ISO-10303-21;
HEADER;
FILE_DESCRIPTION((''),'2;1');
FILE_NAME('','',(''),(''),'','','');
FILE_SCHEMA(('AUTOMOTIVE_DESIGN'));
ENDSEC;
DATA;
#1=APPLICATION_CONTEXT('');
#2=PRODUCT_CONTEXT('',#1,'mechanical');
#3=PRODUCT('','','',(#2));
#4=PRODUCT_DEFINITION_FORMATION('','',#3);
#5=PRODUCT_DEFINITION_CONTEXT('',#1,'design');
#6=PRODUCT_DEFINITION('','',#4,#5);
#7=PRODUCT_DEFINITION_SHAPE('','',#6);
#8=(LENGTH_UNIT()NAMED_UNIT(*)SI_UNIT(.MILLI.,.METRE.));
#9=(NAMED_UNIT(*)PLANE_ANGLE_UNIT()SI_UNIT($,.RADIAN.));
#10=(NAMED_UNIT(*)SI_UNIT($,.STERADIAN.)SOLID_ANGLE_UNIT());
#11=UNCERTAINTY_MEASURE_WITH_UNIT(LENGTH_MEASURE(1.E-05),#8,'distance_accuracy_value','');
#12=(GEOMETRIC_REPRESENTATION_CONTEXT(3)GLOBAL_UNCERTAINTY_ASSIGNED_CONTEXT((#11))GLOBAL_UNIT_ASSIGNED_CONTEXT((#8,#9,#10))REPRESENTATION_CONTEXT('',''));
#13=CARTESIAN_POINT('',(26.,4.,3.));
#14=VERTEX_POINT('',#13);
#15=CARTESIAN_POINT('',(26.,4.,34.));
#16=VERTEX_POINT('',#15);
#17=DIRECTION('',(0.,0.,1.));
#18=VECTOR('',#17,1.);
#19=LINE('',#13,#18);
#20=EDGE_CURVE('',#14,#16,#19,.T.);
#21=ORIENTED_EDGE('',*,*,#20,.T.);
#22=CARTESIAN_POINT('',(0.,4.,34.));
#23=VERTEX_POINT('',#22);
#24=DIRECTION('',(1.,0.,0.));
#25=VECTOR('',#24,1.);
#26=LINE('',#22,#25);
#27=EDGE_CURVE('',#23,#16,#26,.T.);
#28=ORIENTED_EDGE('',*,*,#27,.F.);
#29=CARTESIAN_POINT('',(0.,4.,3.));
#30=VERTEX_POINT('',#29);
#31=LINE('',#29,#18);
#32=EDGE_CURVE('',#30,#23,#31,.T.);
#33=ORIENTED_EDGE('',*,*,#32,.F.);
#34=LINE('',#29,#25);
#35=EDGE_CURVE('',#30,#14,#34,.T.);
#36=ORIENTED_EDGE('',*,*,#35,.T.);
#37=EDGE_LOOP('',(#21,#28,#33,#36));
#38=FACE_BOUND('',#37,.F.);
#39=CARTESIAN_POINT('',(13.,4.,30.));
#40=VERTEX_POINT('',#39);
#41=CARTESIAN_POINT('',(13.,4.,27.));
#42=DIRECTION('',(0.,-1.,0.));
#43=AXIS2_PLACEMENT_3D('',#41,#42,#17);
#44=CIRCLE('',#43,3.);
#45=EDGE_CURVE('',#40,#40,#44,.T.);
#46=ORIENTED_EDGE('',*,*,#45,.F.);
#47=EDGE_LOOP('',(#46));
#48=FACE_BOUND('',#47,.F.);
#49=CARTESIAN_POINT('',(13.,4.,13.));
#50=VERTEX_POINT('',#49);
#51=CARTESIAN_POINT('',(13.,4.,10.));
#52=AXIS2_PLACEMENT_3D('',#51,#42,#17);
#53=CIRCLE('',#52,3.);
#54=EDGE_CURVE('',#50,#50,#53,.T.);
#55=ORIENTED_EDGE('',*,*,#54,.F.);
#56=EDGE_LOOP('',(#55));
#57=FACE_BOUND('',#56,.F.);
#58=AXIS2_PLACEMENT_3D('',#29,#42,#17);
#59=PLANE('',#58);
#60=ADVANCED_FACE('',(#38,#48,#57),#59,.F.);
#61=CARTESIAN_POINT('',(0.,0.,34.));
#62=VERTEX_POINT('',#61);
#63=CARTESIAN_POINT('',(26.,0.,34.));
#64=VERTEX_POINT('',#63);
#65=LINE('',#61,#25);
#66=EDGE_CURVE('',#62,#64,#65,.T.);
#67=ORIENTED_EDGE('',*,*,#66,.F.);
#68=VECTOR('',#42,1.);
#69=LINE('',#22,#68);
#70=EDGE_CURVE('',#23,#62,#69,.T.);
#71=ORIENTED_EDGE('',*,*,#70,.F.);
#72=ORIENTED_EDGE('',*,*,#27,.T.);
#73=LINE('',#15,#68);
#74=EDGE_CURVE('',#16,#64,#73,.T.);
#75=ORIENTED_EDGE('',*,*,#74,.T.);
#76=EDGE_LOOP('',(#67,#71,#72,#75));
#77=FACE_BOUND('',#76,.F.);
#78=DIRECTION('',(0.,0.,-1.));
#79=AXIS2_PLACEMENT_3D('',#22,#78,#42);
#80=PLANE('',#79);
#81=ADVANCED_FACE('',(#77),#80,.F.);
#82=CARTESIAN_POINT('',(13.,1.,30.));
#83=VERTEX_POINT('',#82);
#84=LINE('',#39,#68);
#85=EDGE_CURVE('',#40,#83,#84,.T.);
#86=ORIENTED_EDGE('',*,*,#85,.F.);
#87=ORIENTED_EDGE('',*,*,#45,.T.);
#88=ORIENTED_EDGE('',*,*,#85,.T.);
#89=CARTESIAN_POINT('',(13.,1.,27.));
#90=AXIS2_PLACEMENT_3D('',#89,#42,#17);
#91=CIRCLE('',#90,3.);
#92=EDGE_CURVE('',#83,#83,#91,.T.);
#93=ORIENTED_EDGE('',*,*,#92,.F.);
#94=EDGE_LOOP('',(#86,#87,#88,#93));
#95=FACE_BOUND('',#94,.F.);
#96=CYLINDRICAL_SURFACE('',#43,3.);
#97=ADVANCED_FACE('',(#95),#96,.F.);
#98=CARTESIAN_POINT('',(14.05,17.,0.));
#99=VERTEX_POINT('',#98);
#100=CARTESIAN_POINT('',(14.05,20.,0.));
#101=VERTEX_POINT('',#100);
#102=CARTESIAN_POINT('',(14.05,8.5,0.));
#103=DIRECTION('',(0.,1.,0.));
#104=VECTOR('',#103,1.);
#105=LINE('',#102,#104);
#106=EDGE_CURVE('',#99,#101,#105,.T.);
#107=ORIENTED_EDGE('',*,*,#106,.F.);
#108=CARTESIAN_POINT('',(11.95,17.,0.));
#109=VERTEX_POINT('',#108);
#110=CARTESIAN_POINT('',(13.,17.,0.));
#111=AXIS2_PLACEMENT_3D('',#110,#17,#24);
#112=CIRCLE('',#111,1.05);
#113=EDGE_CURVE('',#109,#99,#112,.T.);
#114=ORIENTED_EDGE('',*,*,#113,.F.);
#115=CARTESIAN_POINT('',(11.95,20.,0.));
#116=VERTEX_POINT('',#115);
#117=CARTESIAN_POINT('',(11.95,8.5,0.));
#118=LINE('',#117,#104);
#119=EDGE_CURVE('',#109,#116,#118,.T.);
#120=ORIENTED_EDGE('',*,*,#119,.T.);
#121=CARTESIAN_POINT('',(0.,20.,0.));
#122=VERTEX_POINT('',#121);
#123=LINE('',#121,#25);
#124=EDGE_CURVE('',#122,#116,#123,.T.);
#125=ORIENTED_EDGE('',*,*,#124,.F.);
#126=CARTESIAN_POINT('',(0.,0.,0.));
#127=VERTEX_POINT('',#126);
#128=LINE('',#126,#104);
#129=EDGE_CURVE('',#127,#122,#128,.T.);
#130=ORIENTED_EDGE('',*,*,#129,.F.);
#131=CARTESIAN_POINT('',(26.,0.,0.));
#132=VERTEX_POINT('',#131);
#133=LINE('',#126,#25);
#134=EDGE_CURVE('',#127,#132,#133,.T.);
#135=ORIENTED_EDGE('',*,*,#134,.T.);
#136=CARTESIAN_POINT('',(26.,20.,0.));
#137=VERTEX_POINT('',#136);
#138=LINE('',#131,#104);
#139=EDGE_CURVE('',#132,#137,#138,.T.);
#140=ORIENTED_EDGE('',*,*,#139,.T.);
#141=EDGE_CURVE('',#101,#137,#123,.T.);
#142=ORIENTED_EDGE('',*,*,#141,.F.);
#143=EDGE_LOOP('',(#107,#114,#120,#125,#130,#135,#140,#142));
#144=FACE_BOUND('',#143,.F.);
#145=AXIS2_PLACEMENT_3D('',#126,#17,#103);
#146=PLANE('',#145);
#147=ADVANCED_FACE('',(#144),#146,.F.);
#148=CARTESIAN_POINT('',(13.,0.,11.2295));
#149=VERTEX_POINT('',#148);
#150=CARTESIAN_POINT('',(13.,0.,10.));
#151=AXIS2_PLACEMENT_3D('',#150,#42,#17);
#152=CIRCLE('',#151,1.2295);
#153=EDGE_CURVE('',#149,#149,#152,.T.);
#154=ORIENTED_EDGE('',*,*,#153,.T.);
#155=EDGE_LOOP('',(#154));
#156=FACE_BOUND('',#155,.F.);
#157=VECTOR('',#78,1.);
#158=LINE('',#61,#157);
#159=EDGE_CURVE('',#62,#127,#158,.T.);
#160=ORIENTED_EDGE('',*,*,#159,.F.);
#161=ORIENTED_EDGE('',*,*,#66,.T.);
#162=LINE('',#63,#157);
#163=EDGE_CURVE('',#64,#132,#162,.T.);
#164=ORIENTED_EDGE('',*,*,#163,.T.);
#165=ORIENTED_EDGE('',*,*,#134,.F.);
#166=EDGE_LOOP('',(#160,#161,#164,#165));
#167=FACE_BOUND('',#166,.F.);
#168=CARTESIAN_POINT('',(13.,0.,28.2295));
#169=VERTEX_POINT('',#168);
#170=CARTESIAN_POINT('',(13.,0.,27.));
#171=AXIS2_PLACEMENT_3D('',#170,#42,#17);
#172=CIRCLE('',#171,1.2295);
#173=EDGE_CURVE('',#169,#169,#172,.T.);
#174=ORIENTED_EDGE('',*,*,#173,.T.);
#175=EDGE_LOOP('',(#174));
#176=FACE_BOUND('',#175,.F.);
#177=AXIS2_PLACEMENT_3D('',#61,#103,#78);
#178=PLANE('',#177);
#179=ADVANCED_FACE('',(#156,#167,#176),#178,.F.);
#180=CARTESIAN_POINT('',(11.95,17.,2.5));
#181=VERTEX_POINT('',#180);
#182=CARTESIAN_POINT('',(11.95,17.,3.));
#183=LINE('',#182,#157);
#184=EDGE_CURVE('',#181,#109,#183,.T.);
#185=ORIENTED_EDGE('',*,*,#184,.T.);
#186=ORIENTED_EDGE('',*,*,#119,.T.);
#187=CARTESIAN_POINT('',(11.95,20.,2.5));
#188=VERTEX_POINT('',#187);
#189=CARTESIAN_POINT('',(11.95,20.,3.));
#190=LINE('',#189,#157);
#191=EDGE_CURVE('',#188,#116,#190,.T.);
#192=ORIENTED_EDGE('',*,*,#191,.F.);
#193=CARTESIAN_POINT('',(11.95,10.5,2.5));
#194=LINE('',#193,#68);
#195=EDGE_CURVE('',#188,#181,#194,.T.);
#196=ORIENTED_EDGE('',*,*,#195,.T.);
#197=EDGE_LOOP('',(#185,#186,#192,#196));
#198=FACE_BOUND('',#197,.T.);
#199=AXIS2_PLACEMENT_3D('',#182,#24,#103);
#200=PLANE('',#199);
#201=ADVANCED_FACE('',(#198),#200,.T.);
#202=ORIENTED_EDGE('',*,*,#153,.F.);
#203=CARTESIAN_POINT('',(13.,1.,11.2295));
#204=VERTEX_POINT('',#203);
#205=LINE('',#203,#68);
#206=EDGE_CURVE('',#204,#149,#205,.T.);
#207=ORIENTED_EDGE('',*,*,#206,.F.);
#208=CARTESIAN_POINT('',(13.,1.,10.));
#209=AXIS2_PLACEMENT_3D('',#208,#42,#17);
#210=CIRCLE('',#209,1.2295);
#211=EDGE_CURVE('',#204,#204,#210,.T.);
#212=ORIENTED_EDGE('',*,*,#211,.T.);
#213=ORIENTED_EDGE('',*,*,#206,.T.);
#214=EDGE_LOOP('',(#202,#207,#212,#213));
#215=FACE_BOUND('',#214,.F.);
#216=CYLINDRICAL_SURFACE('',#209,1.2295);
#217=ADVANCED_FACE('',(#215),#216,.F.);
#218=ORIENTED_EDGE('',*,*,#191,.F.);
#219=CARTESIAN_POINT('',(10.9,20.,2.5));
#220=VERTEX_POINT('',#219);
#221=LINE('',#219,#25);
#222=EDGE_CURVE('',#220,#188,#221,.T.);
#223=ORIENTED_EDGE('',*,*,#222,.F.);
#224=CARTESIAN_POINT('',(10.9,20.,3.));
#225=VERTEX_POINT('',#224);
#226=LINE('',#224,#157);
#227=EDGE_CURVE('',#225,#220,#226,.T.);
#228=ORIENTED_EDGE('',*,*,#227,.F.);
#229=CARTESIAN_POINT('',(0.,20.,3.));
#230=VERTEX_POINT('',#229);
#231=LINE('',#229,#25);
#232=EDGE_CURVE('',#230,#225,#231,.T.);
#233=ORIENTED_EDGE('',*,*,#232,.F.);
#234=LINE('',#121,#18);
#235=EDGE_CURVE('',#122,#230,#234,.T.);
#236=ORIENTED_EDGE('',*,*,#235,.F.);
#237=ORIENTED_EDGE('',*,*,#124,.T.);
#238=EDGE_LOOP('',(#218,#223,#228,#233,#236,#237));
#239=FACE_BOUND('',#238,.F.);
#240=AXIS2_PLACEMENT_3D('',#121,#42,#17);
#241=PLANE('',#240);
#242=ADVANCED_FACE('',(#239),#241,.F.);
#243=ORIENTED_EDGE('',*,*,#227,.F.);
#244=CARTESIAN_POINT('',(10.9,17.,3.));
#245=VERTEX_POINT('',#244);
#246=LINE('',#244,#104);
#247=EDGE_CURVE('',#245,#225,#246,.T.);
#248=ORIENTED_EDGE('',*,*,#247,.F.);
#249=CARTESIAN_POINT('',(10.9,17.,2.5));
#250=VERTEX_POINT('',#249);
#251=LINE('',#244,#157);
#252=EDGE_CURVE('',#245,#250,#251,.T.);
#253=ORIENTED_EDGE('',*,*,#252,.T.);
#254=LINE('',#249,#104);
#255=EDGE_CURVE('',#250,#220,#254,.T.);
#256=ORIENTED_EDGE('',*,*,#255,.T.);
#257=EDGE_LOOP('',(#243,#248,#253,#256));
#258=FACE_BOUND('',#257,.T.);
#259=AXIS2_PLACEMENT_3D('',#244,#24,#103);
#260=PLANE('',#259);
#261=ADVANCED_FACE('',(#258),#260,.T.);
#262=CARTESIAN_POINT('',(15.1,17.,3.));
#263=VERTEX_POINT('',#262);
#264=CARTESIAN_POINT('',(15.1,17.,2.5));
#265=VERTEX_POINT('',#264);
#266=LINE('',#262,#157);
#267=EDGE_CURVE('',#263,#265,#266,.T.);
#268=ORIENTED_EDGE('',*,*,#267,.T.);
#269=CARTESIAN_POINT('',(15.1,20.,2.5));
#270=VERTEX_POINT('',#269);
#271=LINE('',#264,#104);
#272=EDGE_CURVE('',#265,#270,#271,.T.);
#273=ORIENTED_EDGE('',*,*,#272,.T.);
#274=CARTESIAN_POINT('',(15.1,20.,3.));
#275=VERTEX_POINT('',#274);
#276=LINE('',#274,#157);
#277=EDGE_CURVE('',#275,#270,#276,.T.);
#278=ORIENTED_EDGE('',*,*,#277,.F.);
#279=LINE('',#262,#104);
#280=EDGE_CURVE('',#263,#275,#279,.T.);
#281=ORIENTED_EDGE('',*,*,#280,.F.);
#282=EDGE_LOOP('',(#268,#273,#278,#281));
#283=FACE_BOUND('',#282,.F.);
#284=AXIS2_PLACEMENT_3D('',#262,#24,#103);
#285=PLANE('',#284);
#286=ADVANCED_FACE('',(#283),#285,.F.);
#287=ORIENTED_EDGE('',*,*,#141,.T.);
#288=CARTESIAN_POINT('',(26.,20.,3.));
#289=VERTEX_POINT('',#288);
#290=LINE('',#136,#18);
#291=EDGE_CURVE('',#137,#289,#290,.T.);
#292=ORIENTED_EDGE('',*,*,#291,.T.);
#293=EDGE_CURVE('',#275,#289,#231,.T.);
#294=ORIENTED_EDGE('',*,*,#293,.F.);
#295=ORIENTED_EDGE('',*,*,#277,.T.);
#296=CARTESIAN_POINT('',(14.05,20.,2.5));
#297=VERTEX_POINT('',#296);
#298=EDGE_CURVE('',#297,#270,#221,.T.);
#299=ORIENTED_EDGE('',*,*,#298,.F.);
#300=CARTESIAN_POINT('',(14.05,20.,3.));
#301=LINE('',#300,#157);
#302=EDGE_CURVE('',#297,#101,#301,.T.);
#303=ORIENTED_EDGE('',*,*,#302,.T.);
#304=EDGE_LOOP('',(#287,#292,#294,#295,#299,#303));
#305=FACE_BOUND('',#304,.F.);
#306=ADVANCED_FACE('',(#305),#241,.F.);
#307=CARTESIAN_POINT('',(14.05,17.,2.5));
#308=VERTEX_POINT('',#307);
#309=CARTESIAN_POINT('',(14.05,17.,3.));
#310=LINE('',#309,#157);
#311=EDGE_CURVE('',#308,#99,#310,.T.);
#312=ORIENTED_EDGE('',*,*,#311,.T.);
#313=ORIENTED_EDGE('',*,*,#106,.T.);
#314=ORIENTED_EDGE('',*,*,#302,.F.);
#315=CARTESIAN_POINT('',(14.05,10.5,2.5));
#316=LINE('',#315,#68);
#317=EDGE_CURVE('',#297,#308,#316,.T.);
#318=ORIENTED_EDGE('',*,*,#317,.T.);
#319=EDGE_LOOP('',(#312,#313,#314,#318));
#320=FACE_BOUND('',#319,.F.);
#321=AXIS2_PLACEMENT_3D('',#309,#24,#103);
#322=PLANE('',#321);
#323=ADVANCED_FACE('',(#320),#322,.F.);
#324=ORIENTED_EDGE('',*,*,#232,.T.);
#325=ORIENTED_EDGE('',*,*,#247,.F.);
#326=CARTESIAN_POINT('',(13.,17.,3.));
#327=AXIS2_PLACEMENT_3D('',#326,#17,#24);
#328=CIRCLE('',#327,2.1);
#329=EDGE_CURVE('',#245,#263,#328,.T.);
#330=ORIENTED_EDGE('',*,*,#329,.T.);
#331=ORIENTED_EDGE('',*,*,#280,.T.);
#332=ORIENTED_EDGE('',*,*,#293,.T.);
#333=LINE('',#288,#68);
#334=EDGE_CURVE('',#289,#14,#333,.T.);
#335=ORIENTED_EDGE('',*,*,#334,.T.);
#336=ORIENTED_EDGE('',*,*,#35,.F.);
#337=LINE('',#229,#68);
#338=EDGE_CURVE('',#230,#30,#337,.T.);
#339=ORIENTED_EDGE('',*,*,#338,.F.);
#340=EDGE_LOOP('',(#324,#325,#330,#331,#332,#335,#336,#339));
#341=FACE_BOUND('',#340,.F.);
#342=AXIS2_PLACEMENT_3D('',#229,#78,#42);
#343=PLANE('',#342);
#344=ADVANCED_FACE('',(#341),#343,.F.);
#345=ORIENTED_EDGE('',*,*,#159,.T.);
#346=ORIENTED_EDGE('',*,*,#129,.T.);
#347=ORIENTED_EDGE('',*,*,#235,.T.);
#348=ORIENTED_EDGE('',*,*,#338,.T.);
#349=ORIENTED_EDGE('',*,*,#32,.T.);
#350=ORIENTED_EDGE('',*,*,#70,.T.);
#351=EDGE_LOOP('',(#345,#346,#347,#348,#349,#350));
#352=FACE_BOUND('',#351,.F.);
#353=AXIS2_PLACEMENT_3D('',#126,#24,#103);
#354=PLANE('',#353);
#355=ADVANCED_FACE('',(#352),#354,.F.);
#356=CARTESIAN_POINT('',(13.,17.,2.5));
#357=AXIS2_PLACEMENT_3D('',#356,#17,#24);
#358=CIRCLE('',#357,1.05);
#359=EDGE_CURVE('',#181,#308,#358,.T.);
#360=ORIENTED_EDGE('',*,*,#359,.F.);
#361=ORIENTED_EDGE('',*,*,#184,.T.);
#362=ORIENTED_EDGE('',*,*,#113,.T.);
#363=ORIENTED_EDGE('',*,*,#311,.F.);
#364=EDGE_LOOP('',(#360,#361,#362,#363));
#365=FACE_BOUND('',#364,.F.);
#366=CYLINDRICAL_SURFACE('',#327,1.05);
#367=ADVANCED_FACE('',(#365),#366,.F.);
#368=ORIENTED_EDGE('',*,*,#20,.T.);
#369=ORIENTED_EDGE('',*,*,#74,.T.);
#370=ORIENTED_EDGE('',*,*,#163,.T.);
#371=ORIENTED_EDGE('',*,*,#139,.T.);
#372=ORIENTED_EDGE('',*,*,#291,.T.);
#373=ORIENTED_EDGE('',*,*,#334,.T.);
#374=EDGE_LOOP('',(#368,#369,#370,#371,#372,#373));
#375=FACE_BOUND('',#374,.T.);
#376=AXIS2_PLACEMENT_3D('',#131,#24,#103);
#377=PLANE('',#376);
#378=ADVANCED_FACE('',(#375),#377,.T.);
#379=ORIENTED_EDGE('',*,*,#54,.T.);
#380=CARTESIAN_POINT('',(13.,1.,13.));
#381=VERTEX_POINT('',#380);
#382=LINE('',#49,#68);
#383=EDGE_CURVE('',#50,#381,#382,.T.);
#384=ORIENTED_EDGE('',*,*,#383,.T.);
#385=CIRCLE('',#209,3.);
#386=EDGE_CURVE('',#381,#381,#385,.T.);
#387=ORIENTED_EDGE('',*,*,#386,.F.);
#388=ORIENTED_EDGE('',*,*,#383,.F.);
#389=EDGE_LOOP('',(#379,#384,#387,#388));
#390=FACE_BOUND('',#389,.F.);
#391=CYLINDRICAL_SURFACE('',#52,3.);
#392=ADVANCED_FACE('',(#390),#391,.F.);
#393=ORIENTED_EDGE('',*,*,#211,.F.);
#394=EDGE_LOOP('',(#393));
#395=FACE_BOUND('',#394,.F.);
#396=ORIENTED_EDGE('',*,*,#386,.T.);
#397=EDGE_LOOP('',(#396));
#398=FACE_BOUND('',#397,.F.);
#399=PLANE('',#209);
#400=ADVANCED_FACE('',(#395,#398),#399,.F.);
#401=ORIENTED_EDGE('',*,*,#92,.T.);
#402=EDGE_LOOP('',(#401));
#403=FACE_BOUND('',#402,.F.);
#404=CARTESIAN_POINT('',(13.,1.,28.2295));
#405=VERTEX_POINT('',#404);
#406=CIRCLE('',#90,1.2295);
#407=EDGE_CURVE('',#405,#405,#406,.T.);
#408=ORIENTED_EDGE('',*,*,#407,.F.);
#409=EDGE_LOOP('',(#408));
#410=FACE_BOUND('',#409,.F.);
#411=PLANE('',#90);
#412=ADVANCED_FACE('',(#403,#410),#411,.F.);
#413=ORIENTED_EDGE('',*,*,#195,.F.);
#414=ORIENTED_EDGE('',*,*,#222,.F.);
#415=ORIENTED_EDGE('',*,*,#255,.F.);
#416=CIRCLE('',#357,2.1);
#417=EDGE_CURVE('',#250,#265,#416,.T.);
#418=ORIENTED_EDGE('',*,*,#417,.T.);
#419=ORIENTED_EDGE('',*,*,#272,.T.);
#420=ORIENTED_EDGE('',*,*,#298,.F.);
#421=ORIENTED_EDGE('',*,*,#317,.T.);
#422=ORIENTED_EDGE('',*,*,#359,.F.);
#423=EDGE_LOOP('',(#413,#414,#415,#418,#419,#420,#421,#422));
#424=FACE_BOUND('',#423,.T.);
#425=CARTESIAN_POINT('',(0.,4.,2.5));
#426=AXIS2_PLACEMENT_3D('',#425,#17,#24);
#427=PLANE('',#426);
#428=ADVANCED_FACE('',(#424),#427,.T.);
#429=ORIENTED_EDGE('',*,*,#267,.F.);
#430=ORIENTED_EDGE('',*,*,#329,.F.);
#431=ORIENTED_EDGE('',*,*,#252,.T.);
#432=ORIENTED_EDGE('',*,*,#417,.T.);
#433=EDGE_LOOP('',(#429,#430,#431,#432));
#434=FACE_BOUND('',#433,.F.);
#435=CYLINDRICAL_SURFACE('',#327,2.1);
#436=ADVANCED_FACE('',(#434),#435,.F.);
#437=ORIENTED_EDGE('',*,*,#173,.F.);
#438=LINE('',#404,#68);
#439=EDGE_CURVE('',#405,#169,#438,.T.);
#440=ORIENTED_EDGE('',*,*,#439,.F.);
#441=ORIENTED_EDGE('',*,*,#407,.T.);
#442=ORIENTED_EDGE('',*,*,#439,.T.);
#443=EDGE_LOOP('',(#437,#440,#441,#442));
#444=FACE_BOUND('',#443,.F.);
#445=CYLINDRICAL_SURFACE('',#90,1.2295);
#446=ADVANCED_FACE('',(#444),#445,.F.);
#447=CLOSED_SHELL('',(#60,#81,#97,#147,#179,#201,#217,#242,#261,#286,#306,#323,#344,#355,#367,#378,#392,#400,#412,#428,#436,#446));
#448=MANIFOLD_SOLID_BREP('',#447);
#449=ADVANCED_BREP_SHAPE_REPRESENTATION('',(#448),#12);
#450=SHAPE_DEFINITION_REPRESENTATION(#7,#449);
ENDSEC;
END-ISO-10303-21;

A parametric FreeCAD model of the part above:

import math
import FreeCAD as App
import Part
import Sketcher
from FreeCAD import Vector


def add_polygon(sketch, points):
    """Adds a closed chain of lines whose ends are joined by coincident constraints."""
    first, n = sketch.GeometryCount, len(points)
    for a, b in zip(points, points[1:] + points[:1]):
        sketch.addGeometry(Part.LineSegment(App.Vector(*a, 0), App.Vector(*b, 0)), False)
    for i in range(n):
        sketch.addConstraint(Sketcher.Constraint("Coincident", first + i, 2, first + (i + 1) % n, 1))

doc = App.newDocument("Part")
body = doc.addObject("PartDesign::Body", "Body")

sketch1 = body.newObject("Sketcher::SketchObject", "Sketch")
sketch1.AttachmentSupport = (doc.getObject("YZ_Plane"), [""])
sketch1.MapMode = "FlatFace"
add_polygon(sketch1, [(0, 0), (20, 0), (20, 3), (4, 3), (4, 34), (0, 34)])
sketch1.addConstraint(Sketcher.Constraint("Horizontal", 0))
sketch1.addConstraint(Sketcher.Constraint("Vertical", 1))
sketch1.addConstraint(Sketcher.Constraint("Horizontal", 2))
sketch1.addConstraint(Sketcher.Constraint("Vertical", 3))
sketch1.addConstraint(Sketcher.Constraint("Horizontal", 4))
sketch1.addConstraint(Sketcher.Constraint("Vertical", 5))
sketch1.addConstraint(Sketcher.Constraint("Coincident", 5, 2, -1, 1))
sketch1.addConstraint(Sketcher.Constraint("DistanceX", 0, 1, 0, 2, 20.0))
sketch1.addConstraint(Sketcher.Constraint("DistanceX", 4, 2, 4, 1, 4.0))
sketch1.addConstraint(Sketcher.Constraint("DistanceY", 1, 1, 1, 2, 3.0))
sketch1.addConstraint(Sketcher.Constraint("DistanceY", 5, 2, 5, 1, 34.0))
pad1 = body.newObject("PartDesign::Pad", "Pad")
pad1.Profile = sketch1
pad1.Length = 26

sketch2 = body.newObject("Sketcher::SketchObject", "Sketch001")
sketch2.AttachmentSupport = (doc.getObject("XZ_Plane"), [""])
sketch2.MapMode = "FlatFace"
sketch2.AttachmentOffset = App.Placement(Vector(0, 0, -4), App.Rotation())
sketch2.addGeometry(Part.Circle(Vector(13, 27, 0), Vector(0, 0, 1), 1.2), False)
sketch2.addGeometry(Part.Circle(Vector(13, 10, 0), Vector(0, 0, 1), 1.2), False)
sketch2.addConstraint(Sketcher.Constraint("Equal", 0, 1))
sketch2.addConstraint(Sketcher.Constraint("Vertical", 0, 3, 1, 3))
sketch2.addConstraint(Sketcher.Constraint("Diameter", 0, 2.459))
sketch2.addConstraint(Sketcher.Constraint("DistanceX", -1, 1, 0, 3, 13.0))
sketch2.addConstraint(Sketcher.Constraint("DistanceY", -1, 1, 0, 3, 27.0))
sketch2.addConstraint(Sketcher.Constraint("DistanceY", -1, 1, 1, 3, 10.0))
doc.recompute()
hole = body.newObject("PartDesign::Hole", "Hole")
hole.Profile = sketch2
hole.ThreadType = "None"
hole.Diameter = 2.459
hole.DepthType = "ThroughAll"
hole.HoleCutType = "Counterbore"
hole.HoleCutDiameter = 6
hole.HoleCutDepth = 3
hole.Reversed = True

sketch3 = body.newObject("Sketcher::SketchObject", "Sketch002")
sketch3.AttachmentSupport = (doc.getObject("XY_Plane"), [""])
sketch3.MapMode = "FlatFace"
sketch3.AttachmentOffset = App.Placement(Vector(0, 0, 3), App.Rotation())
sketch3.addGeometry(Part.LineSegment(Vector(14.1, 20, 0), Vector(11.9, 20, 0)), False)
sketch3.addGeometry(Part.LineSegment(Vector(11.9, 20, 0), Vector(11.9, 17, 0)), False)
sketch3.addGeometry(Part.ArcOfCircle(Part.Circle(Vector(13, 17, 0), Vector(0, 0, 1), 1.1), math.radians(180), math.radians(360)), False)
sketch3.addGeometry(Part.LineSegment(Vector(14.1, 17, 0), Vector(14.1, 20, 0)), False)
sketch3.addConstraint(Sketcher.Constraint("Coincident", 0, 2, 1, 1))
sketch3.addConstraint(Sketcher.Constraint("Tangent", 1, 2, 2, 1))
sketch3.addConstraint(Sketcher.Constraint("Tangent", 2, 2, 3, 1))
sketch3.addConstraint(Sketcher.Constraint("Coincident", 3, 2, 0, 1))
sketch3.addConstraint(Sketcher.Constraint("Horizontal", 0))
sketch3.addConstraint(Sketcher.Constraint("Vertical", 1))
sketch3.addConstraint(Sketcher.Constraint("Vertical", 3))
sketch3.addConstraint(Sketcher.Constraint("DistanceY", 1, 2, 1, 1, 3.0))
sketch3.addConstraint(Sketcher.Constraint("Radius", 2, 1.05))
sketch3.addConstraint(Sketcher.Constraint("DistanceX", -1, 1, 2, 3, 13.0))
sketch3.addConstraint(Sketcher.Constraint("DistanceY", -1, 1, 2, 3, 17.0))
pocket1 = body.newObject("PartDesign::Pocket", "Pocket")
pocket1.Profile = sketch3
pocket1.Type = "ThroughAll"

sketch4 = body.newObject("Sketcher::SketchObject", "Sketch003")
sketch4.AttachmentSupport = (doc.getObject("XY_Plane"), [""])
sketch4.MapMode = "FlatFace"
sketch4.AttachmentOffset = App.Placement(Vector(0, 0, 3), App.Rotation())
sketch4.addGeometry(Part.ArcOfCircle(Part.Circle(Vector(13, 17, 0), Vector(0, 0, 1), 2.1), math.radians(180), math.radians(360)), False)
sketch4.addGeometry(Part.LineSegment(Vector(15.1, 17, 0), Vector(15.1, 20, 0)), False)
sketch4.addGeometry(Part.LineSegment(Vector(15.1, 20, 0), Vector(10.9, 20, 0)), False)
sketch4.addGeometry(Part.LineSegment(Vector(10.9, 20, 0), Vector(10.9, 17, 0)), False)
sketch4.addConstraint(Sketcher.Constraint("Tangent", 0, 2, 1, 1))
sketch4.addConstraint(Sketcher.Constraint("Coincident", 1, 2, 2, 1))
sketch4.addConstraint(Sketcher.Constraint("Coincident", 2, 2, 3, 1))
sketch4.addConstraint(Sketcher.Constraint("Tangent", 3, 2, 0, 1))
sketch4.addConstraint(Sketcher.Constraint("Vertical", 1))
sketch4.addConstraint(Sketcher.Constraint("Horizontal", 2))
sketch4.addConstraint(Sketcher.Constraint("Vertical", 3))
sketch4.addConstraint(Sketcher.Constraint("Radius", 0, 2.1))
sketch4.addConstraint(Sketcher.Constraint("DistanceY", 1, 1, 1, 2, 3.0))
sketch4.addConstraint(Sketcher.Constraint("DistanceX", -1, 1, 0, 3, 13.0))
sketch4.addConstraint(Sketcher.Constraint("DistanceY", -1, 1, 0, 3, 17.0))
pocket2 = body.newObject("PartDesign::Pocket", "Pocket001")
pocket2.Profile = sketch4
pocket2.Length = 0.5

doc.recompute()
